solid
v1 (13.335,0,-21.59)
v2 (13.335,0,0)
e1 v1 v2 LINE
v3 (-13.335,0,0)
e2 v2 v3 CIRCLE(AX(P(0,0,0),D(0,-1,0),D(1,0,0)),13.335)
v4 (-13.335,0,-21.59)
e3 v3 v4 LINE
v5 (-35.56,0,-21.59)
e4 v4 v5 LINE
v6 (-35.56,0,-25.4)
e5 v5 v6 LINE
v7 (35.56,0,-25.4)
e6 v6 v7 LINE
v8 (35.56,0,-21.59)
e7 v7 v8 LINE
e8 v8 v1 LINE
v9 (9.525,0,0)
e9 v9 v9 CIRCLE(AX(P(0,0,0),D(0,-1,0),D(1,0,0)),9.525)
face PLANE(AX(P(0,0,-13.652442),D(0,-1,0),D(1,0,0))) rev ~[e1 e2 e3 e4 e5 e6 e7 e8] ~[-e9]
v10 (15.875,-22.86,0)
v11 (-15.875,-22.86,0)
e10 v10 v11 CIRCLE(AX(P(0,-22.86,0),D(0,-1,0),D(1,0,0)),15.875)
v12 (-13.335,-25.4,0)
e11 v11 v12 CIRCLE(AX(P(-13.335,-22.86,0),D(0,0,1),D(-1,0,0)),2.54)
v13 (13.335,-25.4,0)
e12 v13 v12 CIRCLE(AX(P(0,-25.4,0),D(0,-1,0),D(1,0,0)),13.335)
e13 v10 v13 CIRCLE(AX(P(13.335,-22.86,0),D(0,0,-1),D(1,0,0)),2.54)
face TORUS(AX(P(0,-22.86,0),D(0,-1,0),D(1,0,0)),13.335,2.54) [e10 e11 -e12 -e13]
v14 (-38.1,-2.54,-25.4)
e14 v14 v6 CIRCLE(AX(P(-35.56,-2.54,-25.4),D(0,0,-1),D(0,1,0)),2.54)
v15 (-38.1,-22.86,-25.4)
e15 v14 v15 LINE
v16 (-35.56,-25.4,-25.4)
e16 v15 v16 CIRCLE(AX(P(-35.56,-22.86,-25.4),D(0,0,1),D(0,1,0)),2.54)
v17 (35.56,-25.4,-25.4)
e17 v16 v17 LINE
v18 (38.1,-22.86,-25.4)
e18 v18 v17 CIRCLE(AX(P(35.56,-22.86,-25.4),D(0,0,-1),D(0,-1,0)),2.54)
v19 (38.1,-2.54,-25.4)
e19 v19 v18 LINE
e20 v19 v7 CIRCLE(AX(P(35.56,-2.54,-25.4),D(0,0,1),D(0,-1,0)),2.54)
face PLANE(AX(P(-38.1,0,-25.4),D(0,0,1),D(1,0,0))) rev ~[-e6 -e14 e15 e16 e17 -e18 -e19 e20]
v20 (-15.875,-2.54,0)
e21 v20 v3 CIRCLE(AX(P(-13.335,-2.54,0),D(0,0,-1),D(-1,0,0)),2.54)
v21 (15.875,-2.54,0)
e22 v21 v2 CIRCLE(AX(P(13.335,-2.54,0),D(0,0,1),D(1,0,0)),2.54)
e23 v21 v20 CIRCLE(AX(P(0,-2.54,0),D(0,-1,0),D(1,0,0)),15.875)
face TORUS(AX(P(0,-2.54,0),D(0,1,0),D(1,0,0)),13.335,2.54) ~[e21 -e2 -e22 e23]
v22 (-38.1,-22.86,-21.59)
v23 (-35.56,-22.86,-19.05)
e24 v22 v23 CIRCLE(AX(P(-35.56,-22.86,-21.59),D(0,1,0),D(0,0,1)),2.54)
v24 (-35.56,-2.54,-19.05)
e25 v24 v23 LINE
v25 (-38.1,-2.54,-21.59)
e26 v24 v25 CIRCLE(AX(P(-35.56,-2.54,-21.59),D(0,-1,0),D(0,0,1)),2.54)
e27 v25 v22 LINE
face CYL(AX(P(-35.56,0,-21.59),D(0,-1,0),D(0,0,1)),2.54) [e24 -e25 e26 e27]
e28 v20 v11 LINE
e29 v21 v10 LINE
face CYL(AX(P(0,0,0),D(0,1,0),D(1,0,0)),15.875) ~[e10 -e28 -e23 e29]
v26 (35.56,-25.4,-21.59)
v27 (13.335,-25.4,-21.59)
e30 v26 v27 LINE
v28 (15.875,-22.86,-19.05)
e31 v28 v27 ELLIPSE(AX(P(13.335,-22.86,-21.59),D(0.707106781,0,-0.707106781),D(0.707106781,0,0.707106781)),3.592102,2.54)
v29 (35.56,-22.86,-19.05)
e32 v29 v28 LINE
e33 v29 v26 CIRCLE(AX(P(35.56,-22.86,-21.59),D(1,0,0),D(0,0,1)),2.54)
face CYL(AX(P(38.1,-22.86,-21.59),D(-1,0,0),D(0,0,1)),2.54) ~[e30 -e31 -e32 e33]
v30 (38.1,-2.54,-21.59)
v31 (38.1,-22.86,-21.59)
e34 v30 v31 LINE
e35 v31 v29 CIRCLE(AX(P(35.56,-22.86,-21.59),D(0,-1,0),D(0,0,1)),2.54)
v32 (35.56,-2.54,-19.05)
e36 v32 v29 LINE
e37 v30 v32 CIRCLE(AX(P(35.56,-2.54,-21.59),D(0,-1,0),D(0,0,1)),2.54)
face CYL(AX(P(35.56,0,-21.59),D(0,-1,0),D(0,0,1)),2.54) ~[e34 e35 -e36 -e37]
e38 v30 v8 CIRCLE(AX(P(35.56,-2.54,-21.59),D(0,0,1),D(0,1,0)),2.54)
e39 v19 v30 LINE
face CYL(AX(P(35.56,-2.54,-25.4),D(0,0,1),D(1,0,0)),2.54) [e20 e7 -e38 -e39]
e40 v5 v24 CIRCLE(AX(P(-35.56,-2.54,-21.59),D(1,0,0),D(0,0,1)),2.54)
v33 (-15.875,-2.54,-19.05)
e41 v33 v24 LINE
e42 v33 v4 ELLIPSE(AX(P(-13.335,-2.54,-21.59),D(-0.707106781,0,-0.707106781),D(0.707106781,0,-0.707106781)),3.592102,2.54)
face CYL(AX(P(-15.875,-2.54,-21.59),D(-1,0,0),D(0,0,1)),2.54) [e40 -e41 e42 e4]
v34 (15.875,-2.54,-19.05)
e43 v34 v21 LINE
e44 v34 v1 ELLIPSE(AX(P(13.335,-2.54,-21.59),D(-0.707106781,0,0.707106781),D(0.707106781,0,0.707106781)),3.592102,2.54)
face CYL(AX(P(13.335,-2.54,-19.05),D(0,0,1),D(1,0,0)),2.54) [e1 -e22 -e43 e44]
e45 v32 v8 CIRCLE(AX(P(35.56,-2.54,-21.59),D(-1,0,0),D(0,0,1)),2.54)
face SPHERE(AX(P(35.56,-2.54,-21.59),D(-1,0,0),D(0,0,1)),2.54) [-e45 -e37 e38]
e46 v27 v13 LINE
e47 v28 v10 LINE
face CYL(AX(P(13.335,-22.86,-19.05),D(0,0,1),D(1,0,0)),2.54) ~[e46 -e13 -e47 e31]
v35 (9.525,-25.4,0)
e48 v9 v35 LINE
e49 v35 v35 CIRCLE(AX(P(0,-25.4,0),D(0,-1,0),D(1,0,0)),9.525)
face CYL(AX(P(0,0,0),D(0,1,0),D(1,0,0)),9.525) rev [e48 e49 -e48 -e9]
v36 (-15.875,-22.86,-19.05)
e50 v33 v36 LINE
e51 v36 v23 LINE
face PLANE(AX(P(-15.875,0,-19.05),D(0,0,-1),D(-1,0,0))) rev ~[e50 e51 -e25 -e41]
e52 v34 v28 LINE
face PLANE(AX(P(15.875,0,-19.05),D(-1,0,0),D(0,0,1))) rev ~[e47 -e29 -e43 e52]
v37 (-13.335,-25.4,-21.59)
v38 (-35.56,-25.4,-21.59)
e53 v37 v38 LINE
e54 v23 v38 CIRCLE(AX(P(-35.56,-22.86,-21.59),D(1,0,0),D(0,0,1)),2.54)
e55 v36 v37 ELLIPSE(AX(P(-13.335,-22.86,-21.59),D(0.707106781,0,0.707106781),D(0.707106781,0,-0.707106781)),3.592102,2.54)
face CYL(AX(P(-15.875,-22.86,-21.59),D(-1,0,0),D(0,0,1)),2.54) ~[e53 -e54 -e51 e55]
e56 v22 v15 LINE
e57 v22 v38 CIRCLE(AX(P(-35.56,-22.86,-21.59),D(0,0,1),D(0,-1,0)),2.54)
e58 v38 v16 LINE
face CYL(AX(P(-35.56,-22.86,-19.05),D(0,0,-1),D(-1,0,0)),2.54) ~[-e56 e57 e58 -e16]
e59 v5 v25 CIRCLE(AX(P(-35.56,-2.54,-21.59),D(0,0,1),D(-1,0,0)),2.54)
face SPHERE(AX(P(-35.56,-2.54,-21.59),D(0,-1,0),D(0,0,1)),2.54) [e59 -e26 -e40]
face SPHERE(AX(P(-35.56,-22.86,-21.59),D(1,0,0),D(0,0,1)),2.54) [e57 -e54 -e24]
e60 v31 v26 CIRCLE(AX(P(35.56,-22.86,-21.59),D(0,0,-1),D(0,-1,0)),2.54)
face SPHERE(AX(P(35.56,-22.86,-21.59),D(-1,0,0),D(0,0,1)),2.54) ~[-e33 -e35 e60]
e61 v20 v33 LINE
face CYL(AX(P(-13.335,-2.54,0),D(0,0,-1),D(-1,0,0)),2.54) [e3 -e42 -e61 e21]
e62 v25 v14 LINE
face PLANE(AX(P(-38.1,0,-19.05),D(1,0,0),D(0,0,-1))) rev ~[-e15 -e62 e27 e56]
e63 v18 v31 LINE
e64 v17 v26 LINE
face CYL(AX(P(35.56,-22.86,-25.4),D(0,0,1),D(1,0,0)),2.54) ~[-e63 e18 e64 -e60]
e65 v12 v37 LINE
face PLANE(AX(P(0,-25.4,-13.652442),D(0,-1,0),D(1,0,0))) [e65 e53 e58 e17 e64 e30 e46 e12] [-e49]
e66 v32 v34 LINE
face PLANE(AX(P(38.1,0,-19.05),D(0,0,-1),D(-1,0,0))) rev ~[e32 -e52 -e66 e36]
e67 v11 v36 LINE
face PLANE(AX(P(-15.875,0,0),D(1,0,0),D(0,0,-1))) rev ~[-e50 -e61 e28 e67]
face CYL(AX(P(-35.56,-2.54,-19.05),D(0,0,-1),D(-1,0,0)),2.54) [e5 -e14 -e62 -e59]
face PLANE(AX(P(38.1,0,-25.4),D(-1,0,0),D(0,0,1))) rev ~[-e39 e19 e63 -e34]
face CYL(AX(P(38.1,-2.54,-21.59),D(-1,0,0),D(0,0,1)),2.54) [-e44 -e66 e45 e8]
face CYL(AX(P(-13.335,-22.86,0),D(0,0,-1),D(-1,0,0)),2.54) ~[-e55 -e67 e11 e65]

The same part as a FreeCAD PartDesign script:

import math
import FreeCAD as App
import Part
import Sketcher

V = App.Vector
Q = App.Units.Quantity


def edges_at(feature, points):
    """Names of the edges that pass closest to the given points."""
    edges = feature.Shape.Edges
    near = lambda p: min(range(len(edges)), key=lambda i: edges[i].distToShape(Part.Vertex(*p))[0])
    return sorted({f"Edge{near(p) + 1}" for p in points})

doc = App.newDocument("Part")
params = doc.addObject("Spreadsheet::Sheet", "Params")
for row, (alias, value) in enumerate([
    ("sketch1_diameter", "0.75 in"),
    ("sketch1_width", "3 in"),
    ("sketch1_radius", "0.625 in"),
    ("sketch1_height", "0.75 in"),
    ("pad1_length", "1 in"),
    ("fillet_radius", "0.1 in"),
], start=1):
    params.set(f"A{row}", alias)
    params.set(f"B{row}", "=" + value)
    params.setAlias(f"B{row}", alias)

body = doc.addObject("PartDesign::Body", "Body")

sketch1 = body.newObject("Sketcher::SketchObject", "Sketch")
sketch1.AttachmentSupport = (doc.getObject("XZ_Plane"), [""])
sketch1.MapMode = "FlatFace"
sketch1.addGeometry([
    Part.LineSegment(V(16, -19, 0), V(16, 0, 0)),
    Part.ArcOfCircle(Part.Circle(V(0, 0, 0), V(0, 0, 1), 16), math.radians(0), math.radians(180)),
    Part.LineSegment(V(-16, 0, 0), V(-16, -19, 0)),
    Part.LineSegment(V(-16, -19, 0), V(-38, -19, 0)),
    Part.LineSegment(V(-38, -19, 0), V(-38, -25, 0)),
    Part.LineSegment(V(-38, -25, 0), V(38, -25, 0)),
    Part.LineSegment(V(38, -25, 0), V(38, -19, 0)),
    Part.LineSegment(V(38, -19, 0), V(16, -19, 0)),
    Part.Circle(V(0, 0, 0), V(0, 0, 1), 10),
], False)
sketch1.addConstraint([
    Sketcher.Constraint("Tangent", 0, 2, 1, 1),
    Sketcher.Constraint("Tangent", 1, 2, 2, 1),
    Sketcher.Constraint("Coincident", 2, 2, 3, 1),
    Sketcher.Constraint("Coincident", 3, 2, 4, 1),
    Sketcher.Constraint("Coincident", 4, 2, 5, 1),
    Sketcher.Constraint("Coincident", 5, 2, 6, 1),
    Sketcher.Constraint("Coincident", 6, 2, 7, 1),
    Sketcher.Constraint("Coincident", 7, 2, 0, 1),
    Sketcher.Constraint("Vertical", 0),
    Sketcher.Constraint("Vertical", 2),
    Sketcher.Constraint("Horizontal", 3),
    Sketcher.Constraint("Vertical", 4),
    Sketcher.Constraint("Horizontal", 5),
    Sketcher.Constraint("Vertical", 6),
    Sketcher.Constraint("Horizontal", 7),
    Sketcher.Constraint("Coincident", 1, 3, -1, 1),
    Sketcher.Constraint("Coincident", 8, 3, -1, 1),
    Sketcher.Constraint("Symmetric", 3, 2, 6, 2, -2),
    Sketcher.Constraint("Diameter", 8, Q("0.75 in")),
    Sketcher.Constraint("DistanceX", 5, 1, 5, 2, Q("3 in")),
    Sketcher.Constraint("DistanceY", 4, 2, -1, 1, Q("1 in")),
    Sketcher.Constraint("Radius", 1, Q("0.625 in")),
    Sketcher.Constraint("DistanceY", 0, 1, 0, 2, Q("0.75 in")),
])
sketch1.setExpression("Constraints[18]", "Params.sketch1_diameter")
sketch1.setExpression("Constraints[19]", "Params.sketch1_width")
sketch1.setExpression("Constraints[21]", "Params.sketch1_radius")
sketch1.setExpression("Constraints[22]", "Params.sketch1_height")
pad1 = body.newObject("PartDesign::Pad", "Pad")
pad1.Profile = sketch1
pad1.setExpression("Length", "Params.pad1_length")
doc.recompute()

fillet = body.newObject("PartDesign::Fillet", "Fillet")
fillet.Base = (pad1, edges_at(pad1, [
    (0, -25.4, 15.875),
    (0, 0, 15.875),
    (-15.875, -25.4, -9.525),
    (15.875, -25.4, -9.525),
    (26.988, -25.4, -19.05),
    (-26.988, -25.4, -19.05),
    (-38.1, -12.7, -19.05),
    (-26.988, 0, -19.05),
    (-15.875, 0, -9.525),
    (15.875, 0, -9.525),
    (26.988, 0, -19.05),
    (38.1, -12.7, -19.05),
    (-38.1, -25.4, -22.225),
    (-38.1, 0, -22.225),
    (38.1, 0, -22.225),
    (38.1, -25.4, -22.225),
]))
fillet.setExpression("Radius", "Params.fillet_radius")

doc.recompute()
